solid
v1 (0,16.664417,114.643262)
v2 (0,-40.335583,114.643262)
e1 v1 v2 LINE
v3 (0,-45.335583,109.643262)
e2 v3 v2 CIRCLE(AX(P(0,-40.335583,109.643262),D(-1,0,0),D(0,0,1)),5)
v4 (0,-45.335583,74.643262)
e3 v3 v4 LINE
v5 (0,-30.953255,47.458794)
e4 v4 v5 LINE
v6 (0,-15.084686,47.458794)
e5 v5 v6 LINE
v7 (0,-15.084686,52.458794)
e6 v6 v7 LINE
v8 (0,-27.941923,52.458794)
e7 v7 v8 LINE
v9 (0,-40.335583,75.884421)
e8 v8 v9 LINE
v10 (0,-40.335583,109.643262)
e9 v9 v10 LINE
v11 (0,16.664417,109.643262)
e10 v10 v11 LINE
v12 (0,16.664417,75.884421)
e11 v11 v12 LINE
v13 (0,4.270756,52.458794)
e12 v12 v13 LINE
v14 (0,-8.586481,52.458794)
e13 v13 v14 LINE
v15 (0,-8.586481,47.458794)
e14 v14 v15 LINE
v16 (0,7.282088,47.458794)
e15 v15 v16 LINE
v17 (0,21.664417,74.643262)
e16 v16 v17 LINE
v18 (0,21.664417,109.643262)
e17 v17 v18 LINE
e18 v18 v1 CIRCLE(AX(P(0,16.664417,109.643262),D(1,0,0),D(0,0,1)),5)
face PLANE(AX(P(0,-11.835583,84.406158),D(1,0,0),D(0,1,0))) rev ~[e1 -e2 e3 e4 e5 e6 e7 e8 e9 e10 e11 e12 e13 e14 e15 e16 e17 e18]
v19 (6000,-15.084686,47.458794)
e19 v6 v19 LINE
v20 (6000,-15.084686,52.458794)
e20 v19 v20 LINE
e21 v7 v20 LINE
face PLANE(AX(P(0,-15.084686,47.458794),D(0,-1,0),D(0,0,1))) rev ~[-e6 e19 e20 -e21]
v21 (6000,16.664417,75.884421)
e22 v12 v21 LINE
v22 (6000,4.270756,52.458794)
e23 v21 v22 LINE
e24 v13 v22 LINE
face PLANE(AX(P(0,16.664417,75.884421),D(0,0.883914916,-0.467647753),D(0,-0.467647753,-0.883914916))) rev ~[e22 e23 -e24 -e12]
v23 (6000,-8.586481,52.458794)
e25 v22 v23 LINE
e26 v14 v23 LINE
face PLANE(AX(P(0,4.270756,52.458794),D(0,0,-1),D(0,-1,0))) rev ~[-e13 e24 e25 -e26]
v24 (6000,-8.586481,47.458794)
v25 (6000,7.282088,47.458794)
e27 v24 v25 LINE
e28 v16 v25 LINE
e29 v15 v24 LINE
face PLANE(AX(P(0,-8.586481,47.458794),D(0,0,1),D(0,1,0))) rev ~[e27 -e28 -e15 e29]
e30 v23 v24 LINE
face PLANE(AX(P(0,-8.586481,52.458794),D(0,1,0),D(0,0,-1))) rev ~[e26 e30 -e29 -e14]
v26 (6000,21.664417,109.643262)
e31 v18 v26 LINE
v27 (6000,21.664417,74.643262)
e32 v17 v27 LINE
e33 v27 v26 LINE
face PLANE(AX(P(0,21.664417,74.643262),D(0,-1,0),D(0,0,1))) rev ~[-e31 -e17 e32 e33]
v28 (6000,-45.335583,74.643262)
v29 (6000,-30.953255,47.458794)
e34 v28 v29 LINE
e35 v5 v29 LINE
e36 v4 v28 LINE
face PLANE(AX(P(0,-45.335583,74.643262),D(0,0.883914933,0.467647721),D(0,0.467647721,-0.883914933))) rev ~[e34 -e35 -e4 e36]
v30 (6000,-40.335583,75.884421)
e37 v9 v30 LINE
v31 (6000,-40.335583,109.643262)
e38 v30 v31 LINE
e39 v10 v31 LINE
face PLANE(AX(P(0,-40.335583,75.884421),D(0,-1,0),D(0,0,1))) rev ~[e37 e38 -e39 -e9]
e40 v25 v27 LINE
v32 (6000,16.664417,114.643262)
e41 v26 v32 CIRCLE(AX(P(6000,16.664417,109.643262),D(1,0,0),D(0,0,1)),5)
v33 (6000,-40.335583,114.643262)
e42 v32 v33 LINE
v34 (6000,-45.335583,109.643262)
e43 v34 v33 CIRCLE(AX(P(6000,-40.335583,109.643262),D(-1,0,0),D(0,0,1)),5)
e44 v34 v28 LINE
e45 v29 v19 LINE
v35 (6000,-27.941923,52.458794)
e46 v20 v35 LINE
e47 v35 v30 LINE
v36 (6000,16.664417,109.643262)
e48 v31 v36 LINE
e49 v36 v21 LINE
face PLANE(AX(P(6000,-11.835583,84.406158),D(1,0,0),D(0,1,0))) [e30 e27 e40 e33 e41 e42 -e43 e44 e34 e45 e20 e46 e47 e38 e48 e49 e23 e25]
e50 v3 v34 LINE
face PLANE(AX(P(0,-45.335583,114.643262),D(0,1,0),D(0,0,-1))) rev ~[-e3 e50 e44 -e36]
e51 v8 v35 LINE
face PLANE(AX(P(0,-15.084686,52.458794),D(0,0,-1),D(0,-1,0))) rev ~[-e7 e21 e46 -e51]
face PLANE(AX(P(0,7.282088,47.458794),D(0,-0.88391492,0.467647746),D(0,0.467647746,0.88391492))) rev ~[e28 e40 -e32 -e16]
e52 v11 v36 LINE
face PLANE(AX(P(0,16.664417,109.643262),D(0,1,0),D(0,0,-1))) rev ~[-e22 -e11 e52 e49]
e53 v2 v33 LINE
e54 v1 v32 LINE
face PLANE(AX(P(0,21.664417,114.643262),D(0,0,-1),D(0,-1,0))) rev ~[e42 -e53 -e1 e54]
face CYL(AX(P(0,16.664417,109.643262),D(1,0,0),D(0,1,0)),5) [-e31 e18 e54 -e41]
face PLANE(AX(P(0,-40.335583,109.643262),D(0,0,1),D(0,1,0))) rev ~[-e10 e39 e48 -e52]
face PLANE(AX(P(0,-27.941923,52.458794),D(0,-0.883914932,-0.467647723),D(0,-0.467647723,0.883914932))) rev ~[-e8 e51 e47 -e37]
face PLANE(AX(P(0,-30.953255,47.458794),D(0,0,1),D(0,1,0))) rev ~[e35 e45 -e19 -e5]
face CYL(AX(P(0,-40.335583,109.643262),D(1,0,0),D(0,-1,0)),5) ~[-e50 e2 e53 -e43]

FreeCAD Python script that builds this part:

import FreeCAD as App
import Part
import Sketcher
from FreeCAD import Vector
Q = App.Units.Quantity


def edges_at(feature, points):
    """Names of the edges that pass closest to the given points."""
    edges = feature.Shape.Edges
    near = lambda p: min(range(len(edges)), key=lambda i: edges[i].distToShape(Part.Vertex(*p))[0])
    return sorted({f"Edge{near(p) + 1}" for p in points})

doc = App.newDocument("Part")
body = doc.addObject("PartDesign::Body", "Body")

# Sketch on YZ plane
sketch1 = doc.addObject("Sketcher::SketchObject", "Sketch")
body.addObject(sketch1)
sketch1.AttachmentSupport = (doc.YZ_Plane, [""])
sketch1.MapMode = "FlatFace"
sketch1.addGeometry([
    Part.LineSegment(Vector(-45, 115, 0), Vector(-45, 75, 0)),  # 0
    Part.LineSegment(Vector(-45, 75, 0), Vector(-31, 47, 0)),  # 1
    Part.LineSegment(Vector(-31, 47, 0), Vector(-15, 47, 0)),  # 2
    Part.LineSegment(Vector(-15, 47, 0), Vector(-15, 52, 0)),  # 3
    Part.LineSegment(Vector(-15, 52, 0), Vector(-28, 52, 0)),  # 4
    Part.LineSegment(Vector(-28, 52, 0), Vector(-40, 76, 0)),  # 5
    Part.LineSegment(Vector(-40, 76, 0), Vector(-40, 110, 0)),  # 6
    Part.LineSegment(Vector(-40, 110, 0), Vector(17, 110, 0)),  # 7
    Part.LineSegment(Vector(17, 110, 0), Vector(17, 76, 0)),  # 8
    Part.LineSegment(Vector(17, 76, 0), Vector(4, 52, 0)),  # 9
    Part.LineSegment(Vector(4, 52, 0), Vector(-9, 52, 0)),  # 10
    Part.LineSegment(Vector(-9, 52, 0), Vector(-9, 47, 0)),  # 11
    Part.LineSegment(Vector(-9, 47, 0), Vector(7, 47, 0)),  # 12
    Part.LineSegment(Vector(7, 47, 0), Vector(22, 75, 0)),  # 13
    Part.LineSegment(Vector(22, 75, 0), Vector(22, 115, 0)),  # 14
    Part.LineSegment(Vector(22, 115, 0), Vector(-45, 115, 0)),  # 15
], False)
sketch1.addConstraint([
    Sketcher.Constraint("Coincident", 0, 2, 1, 1),
    Sketcher.Constraint("Coincident", 1, 2, 2, 1),
    Sketcher.Constraint("Coincident", 2, 2, 3, 1),
    Sketcher.Constraint("Coincident", 3, 2, 4, 1),
    Sketcher.Constraint("Coincident", 4, 2, 5, 1),
    Sketcher.Constraint("Coincident", 5, 2, 6, 1),
    Sketcher.Constraint("Coincident", 6, 2, 7, 1),
    Sketcher.Constraint("Coincident", 7, 2, 8, 1),
    Sketcher.Constraint("Coincident", 8, 2, 9, 1),
    Sketcher.Constraint("Coincident", 9, 2, 10, 1),
    Sketcher.Constraint("Coincident", 10, 2, 11, 1),
    Sketcher.Constraint("Coincident", 11, 2, 12, 1),
    Sketcher.Constraint("Coincident", 12, 2, 13, 1),
    Sketcher.Constraint("Coincident", 13, 2, 14, 1),
    Sketcher.Constraint("Coincident", 14, 2, 15, 1),
    Sketcher.Constraint("Coincident", 15, 2, 0, 1),
    Sketcher.Constraint("Vertical", 0),
    Sketcher.Constraint("Horizontal", 2),
    Sketcher.Constraint("Vertical", 3),
    Sketcher.Constraint("Horizontal", 4),
    Sketcher.Constraint("Vertical", 6),
    Sketcher.Constraint("Horizontal", 7),
    Sketcher.Constraint("Vertical", 8),
    Sketcher.Constraint("Horizontal", 10),
    Sketcher.Constraint("Vertical", 11),
    Sketcher.Constraint("Horizontal", 12),
    Sketcher.Constraint("Vertical", 14),
    Sketcher.Constraint("Horizontal", 15),
    Sketcher.Constraint("Parallel", 1, 5),
    Sketcher.Constraint("Parallel", 9, 13),
    Sketcher.Constraint("Horizontal", 5, 2, 8, 2),
    Sketcher.Constraint("Horizontal", 4, 2, 9, 2),
    Sketcher.Constraint("Horizontal", 2, 2, 11, 2),
    Sketcher.Constraint("Horizontal", 0, 2, 13, 2),
    Sketcher.Constraint("Equal", 4, 10),
    Sketcher.Constraint("Equal", 2, 12),
    Sketcher.Constraint("Equal", 5, 9),
    Sketcher.Constraint("DistanceX", 7, 1, 7, 2, Q("57 mm")),
    Sketcher.Constraint("DistanceX", 15, 2, 15, 1, Q("67 mm")),
    Sketcher.Constraint("DistanceY", 0, 2, 0, 1, Q("40 mm")),
    Sketcher.Constraint("DistanceY", 3, 1, 3, 2, Q("5 mm")),
    Sketcher.Constraint("DistanceY", 0, 2, 6, 2, Q("35 mm")),
    Sketcher.Constraint("DistanceX", 2, 1, 2, 2, Q("15.868569 mm")),
    Sketcher.Constraint("DistanceY", 6, 1, 6, 2, Q("33.758841 mm")),
    Sketcher.Constraint("Distance", 1, Q("30.75462 mm")),
    Sketcher.Constraint("Distance", 5, Q("26.502128 mm")),
    Sketcher.Constraint("DistanceY", -1, 1, 0, 2, Q("74.643262 mm")),
    Sketcher.Constraint("DistanceX", 10, 2, -1, 1, Q("8.586481 mm")),
])
pad1 = doc.addObject("PartDesign::Pad", "Pad")
body.addObject(pad1)
pad1.Profile = sketch1
pad1.Length = 6000
doc.recompute()

fillet = doc.addObject("PartDesign::Fillet", "Fillet")
body.addObject(fillet)
fillet.Base = (pad1, edges_at(pad1, [(3000, 21.664, 114.643), (3000, -45.336, 114.643)]))
fillet.Radius = 5

doc.recompute()
